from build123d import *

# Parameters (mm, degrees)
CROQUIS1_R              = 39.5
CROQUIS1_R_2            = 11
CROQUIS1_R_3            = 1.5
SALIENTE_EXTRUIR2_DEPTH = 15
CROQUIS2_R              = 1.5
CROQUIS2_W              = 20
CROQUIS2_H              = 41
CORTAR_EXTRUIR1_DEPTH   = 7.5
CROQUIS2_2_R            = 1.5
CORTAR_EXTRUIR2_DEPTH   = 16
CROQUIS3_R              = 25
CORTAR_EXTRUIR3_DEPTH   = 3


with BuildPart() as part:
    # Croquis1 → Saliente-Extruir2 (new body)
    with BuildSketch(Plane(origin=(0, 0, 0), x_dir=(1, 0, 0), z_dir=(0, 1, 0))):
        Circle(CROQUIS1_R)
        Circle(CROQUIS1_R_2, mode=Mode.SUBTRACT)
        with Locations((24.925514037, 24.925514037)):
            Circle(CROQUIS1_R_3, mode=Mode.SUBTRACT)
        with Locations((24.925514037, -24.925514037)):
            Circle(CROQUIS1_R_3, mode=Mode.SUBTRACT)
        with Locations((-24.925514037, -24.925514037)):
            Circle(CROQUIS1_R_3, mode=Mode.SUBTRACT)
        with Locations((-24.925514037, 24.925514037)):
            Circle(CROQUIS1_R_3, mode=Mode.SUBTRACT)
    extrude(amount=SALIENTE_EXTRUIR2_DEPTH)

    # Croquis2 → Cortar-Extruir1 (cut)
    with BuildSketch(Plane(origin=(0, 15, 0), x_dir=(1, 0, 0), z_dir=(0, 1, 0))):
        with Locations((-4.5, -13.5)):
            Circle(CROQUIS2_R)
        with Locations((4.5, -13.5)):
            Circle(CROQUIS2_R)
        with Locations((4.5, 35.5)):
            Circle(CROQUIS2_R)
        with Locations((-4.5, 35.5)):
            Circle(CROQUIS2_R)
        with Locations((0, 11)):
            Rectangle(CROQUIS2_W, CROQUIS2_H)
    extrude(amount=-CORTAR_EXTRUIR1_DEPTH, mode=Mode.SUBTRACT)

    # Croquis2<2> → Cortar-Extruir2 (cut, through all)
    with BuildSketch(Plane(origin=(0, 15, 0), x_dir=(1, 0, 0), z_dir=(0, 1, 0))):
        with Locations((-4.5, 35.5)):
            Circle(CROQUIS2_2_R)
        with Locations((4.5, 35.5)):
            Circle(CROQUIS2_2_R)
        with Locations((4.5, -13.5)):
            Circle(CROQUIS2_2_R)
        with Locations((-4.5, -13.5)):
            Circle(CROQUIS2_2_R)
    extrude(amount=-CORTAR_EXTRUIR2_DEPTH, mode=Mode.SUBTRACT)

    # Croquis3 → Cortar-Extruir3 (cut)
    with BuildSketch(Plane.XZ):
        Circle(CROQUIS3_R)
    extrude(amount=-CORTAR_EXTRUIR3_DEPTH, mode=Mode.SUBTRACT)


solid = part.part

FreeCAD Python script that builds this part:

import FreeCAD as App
import Part
import Sketcher

V = App.Vector


def add_polygon(sketch, points):
    """Adds a closed chain of lines whose ends are joined by coincident constraints."""
    first, n = sketch.GeometryCount, len(points)
    for a, b in zip(points, points[1:] + points[:1]):
        sketch.addGeometry(Part.LineSegment(App.Vector(*a, 0), App.Vector(*b, 0)), False)
    for i in range(n):
        sketch.addConstraint(Sketcher.Constraint("Coincident", first + i, 2, first + (i + 1) % n, 1))

doc = App.newDocument("Part")
body = doc.addObject("PartDesign::Body", "Body")

sketch1 = body.newObject("Sketcher::SketchObject", "Sketch")
sketch1.AttachmentSupport = (doc.getObject("XZ_Plane"), [""])
sketch1.MapMode = "FlatFace"
sketch1.addGeometry([
    Part.Circle(V(0, 0, 0), V(0, 0, 1), 39.5),
    Part.Circle(V(-24.9, 24.9, 0), V(0, 0, 1), 1.5),
    Part.Circle(V(24.9, 24.9, 0), V(0, 0, 1), 1.5),
    Part.Circle(V(-24.9, -24.9, 0), V(0, 0, 1), 1.5),
    Part.Circle(V(0, 0, 0), V(0, 0, 1), 11),
    Part.Circle(V(24.9, -24.9, 0), V(0, 0, 1), 1.5),
], False)
sketch1.addConstraint([
    Sketcher.Constraint("Coincident", 0, 3, -1, 1),
    Sketcher.Constraint("Coincident", 4, 3, -1, 1),
    Sketcher.Constraint("Equal", 1, 2),
    Sketcher.Constraint("Equal", 2, 3),
    Sketcher.Constraint("Equal", 3, 5),
    Sketcher.Constraint("Symmetric", 2, 3, 3, 3, -1, 1),
    Sketcher.Constraint("Symmetric", 1, 3, 5, 3, -1, 1),
    Sketcher.Constraint("Symmetric", 1, 3, 2, 3, -2),
    Sketcher.Constraint("Diameter", 0, 79.0),
    Sketcher.Constraint("Diameter", 1, 3.0),
    Sketcher.Constraint("Diameter", 4, 22.0),
    Sketcher.Constraint("DistanceX", 1, 3, 2, 3, 49.851028),
    Sketcher.Constraint("DistanceY", 3, 3, 1, 3, 49.851028),
])
pad1 = body.newObject("PartDesign::Pad", "Pad")
pad1.Profile = sketch1
pad1.Length = 15
pad1.Reversed = True

sketch2 = body.newObject("Sketcher::SketchObject", "Sketch001")
sketch2.AttachmentSupport = (doc.getObject("XZ_Plane"), [""])
sketch2.MapMode = "FlatFace"
sketch2.AttachmentOffset = App.Placement(V(0, 0, -15), App.Rotation())
sketch2.addGeometry(Part.Circle(V(-4.5, 13.5, 0), V(0, 0, 1), 1.5), False)
sketch2.addGeometry(Part.Circle(V(4.5, 13.5, 0), V(0, 0, 1), 1.5), False)
sketch2.addGeometry(Part.Circle(V(4.5, -35.5, 0), V(0, 0, 1), 1.5), False)
sketch2.addGeometry(Part.Circle(V(-4.5, -35.5, 0), V(0, 0, 1), 1.5), False)
add_polygon(sketch2, [(-10, -31.5), (-10, 9.5), (10, 9.5), (10, -31.5)])
sketch2.addConstraint([
    Sketcher.Constraint("Vertical", 4),
    Sketcher.Constraint("Horizontal", 5),
    Sketcher.Constraint("Vertical", 6),
    Sketcher.Constraint("Horizontal", 7),
    Sketcher.Constraint("Equal", 0, 1),
    Sketcher.Constraint("Equal", 1, 2),
    Sketcher.Constraint("Equal", 2, 3),
    Sketcher.Constraint("Symmetric", 0, 3, 1, 3, -2),
    Sketcher.Constraint("Symmetric", 2, 3, 3, 3, -2),
    Sketcher.Constraint("Vertical", 1, 3, 2, 3),
    Sketcher.Constraint("Diameter", 0, 3.0),
    Sketcher.Constraint("DistanceX", 5, 1, 5, 2, 20.0),
    Sketcher.Constraint("DistanceY", 4, 1, 4, 2, 41.0),
    Sketcher.Constraint("DistanceX", 4, 2, -1, 1, 10.0),
    Sketcher.Constraint("DistanceX", 0, 3, 1, 3, 9.0),
    Sketcher.Constraint("DistanceY", 2, 3, 1, 3, 49.0),
    Sketcher.Constraint("DistanceY", 4, 2, 0, 3, 4.0),
    Sketcher.Constraint("DistanceY", -1, 1, 0, 3, 13.5),
])
pocket1 = body.newObject("PartDesign::Pocket", "Pocket")
pocket1.Profile = sketch2
pocket1.Length = 7.5
pocket1.Reversed = True

sketch3 = body.newObject("Sketcher::SketchObject", "Sketch002")
sketch3.AttachmentSupport = (doc.getObject("XZ_Plane"), [""])
sketch3.MapMode = "FlatFace"
sketch3.AttachmentOffset = App.Placement(V(0, 0, -15), App.Rotation())
sketch3.addGeometry([
    Part.Circle(V(-4.5, -35.5, 0), V(0, 0, 1), 1.5),
    Part.Circle(V(4.5, -35.5, 0), V(0, 0, 1), 1.5),
    Part.Circle(V(4.5, 13.5, 0), V(0, 0, 1), 1.5),
    Part.Circle(V(-4.5, 13.5, 0), V(0, 0, 1), 1.5),
], False)
sketch3.addConstraint([
    Sketcher.Constraint("Equal", 0, 1),
    Sketcher.Constraint("Equal", 1, 2),
    Sketcher.Constraint("Equal", 2, 3),
    Sketcher.Constraint("Symmetric", 0, 3, 1, 3, -2),
    Sketcher.Constraint("Symmetric", 2, 3, 3, 3, -2),
    Sketcher.Constraint("Vertical", 1, 3, 2, 3),
    Sketcher.Constraint("Diameter", 0, 3.0),
    Sketcher.Constraint("DistanceX", 0, 3, 1, 3, 9.0),
    Sketcher.Constraint("DistanceY", 1, 3, 2, 3, 49.0),
    Sketcher.Constraint("DistanceY", 0, 3, -1, 1, 35.5),
])
pocket2 = body.newObject("PartDesign::Pocket", "Pocket001")
pocket2.Profile = sketch3
pocket2.Type = "ThroughAll"
pocket2.Reversed = True

sketch4 = body.newObject("Sketcher::SketchObject", "Sketch003")
sketch4.AttachmentSupport = (doc.getObject("XZ_Plane"), [""])
sketch4.MapMode = "FlatFace"
sketch4.addGeometry(Part.Circle(V(0, 0, 0), V(0, 0, 1), 25), False)
sketch4.addConstraint([
    Sketcher.Constraint("Coincident", 0, 3, -1, 1),
    Sketcher.Constraint("Diameter", 0, 50.0),
])
pocket3 = body.newObject("PartDesign::Pocket", "Pocket002")
pocket3.Profile = sketch4
pocket3.Length = 3

doc.recompute()
